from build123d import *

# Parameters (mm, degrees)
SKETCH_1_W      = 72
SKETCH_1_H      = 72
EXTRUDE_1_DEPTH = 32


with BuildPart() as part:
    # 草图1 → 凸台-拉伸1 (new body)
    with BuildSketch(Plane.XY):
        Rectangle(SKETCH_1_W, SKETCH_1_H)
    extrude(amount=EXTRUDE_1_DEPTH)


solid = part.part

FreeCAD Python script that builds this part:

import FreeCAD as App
import Part
import Sketcher
from FreeCAD import Vector
Q = App.Units.Quantity

doc = App.newDocument("Part")
body = doc.addObject("PartDesign::Body", "Body")

sketch1 = body.newObject("Sketcher::SketchObject", "Sketch")
sketch1.AttachmentSupport = (doc.getObject("XY_Plane"), [""])
sketch1.MapMode = "FlatFace"
sketch1.addGeometry([
    Part.LineSegment(Vector(-36, 36, 0), Vector(-36, -36, 0)),
    Part.LineSegment(Vector(-36, -36, 0), Vector(36, -36, 0)),
    Part.LineSegment(Vector(36, -36, 0), Vector(36, 36, 0)),
    Part.LineSegment(Vector(36, 36, 0), Vector(-36, 36, 0)),
], False)
sketch1.addConstraint([
    Sketcher.Constraint("Coincident", 0, 2, 1, 1),
    Sketcher.Constraint("Coincident", 1, 2, 2, 1),
    Sketcher.Constraint("Coincident", 2, 2, 3, 1),
    Sketcher.Constraint("Coincident", 3, 2, 0, 1),
    Sketcher.Constraint("Vertical", 0),
    Sketcher.Constraint("Horizontal", 1),
    Sketcher.Constraint("Vertical", 2),
    Sketcher.Constraint("Horizontal", 3),
    Sketcher.Constraint("Symmetric", 0, 2, 2, 2, -1, 1),
    Sketcher.Constraint("Equal", 3, 0),
    Sketcher.Constraint("DistanceX", 1, 1, 1, 2, Q("72 mm")),
])
pad1 = body.newObject("PartDesign::Pad", "Pad")
pad1.Profile = sketch1
pad1.Length = 32

doc.recompute()
